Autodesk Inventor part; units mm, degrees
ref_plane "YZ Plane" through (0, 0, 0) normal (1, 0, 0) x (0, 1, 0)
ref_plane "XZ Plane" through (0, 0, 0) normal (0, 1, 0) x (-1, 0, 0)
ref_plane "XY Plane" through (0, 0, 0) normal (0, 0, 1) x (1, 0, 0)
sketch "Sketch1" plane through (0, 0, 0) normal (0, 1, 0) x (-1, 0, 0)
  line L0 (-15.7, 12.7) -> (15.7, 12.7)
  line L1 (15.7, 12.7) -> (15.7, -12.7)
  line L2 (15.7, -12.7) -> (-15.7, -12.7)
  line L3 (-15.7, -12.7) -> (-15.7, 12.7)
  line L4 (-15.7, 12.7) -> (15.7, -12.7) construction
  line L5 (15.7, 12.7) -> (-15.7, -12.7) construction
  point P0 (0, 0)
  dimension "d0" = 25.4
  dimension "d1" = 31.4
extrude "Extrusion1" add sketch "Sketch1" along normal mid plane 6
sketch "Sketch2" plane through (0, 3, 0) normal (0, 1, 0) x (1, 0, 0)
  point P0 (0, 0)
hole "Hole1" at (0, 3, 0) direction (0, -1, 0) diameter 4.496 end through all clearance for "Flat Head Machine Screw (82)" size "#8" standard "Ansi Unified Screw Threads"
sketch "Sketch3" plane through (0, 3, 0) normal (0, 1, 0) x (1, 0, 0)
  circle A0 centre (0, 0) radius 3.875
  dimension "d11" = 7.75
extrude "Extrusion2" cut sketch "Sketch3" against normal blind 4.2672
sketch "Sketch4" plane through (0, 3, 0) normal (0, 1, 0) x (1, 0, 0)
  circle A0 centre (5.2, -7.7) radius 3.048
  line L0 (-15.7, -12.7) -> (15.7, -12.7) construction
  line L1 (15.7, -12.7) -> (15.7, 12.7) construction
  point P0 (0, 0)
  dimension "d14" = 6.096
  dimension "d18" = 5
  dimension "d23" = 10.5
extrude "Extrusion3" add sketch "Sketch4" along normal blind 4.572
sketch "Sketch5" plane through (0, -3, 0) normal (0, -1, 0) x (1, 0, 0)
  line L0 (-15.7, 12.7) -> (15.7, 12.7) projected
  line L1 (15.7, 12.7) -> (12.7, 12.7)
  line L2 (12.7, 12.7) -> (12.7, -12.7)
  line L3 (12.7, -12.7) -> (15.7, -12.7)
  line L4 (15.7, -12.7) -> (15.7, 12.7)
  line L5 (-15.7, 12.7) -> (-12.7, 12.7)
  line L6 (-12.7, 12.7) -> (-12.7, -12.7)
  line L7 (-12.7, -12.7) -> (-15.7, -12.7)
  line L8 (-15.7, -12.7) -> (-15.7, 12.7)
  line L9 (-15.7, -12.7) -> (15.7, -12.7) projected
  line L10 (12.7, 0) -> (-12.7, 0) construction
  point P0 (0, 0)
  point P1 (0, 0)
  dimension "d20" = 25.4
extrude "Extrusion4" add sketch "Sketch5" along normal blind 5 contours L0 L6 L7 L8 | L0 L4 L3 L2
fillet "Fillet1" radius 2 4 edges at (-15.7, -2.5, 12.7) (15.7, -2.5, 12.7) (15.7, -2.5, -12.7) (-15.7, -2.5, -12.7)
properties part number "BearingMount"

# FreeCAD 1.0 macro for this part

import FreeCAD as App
import Part
import Sketcher
Q = App.Units.Quantity


def edges_at(feature, points):
    """Names of the edges that pass closest to the given points."""
    edges = feature.Shape.Edges
    near = lambda p: min(range(len(edges)), key=lambda i: edges[i].distToShape(Part.Vertex(*p))[0])
    return sorted({f"Edge{near(p) + 1}" for p in points})

doc = App.newDocument("Part")
params = doc.addObject("Spreadsheet::Sheet", "Params")
for row, (alias, value) in enumerate([
    ("sketch1_height", "1 in"),
    ("pad1_length", "6 mm"),
    ("sketch2_diameter", "0.177 in"),
    ("hole_diameter", "0.1770079 in"),
    ("pocket1_length", "0.168 in"),
    ("sketch4_diameter", "0.24 in"),
    ("pad2_length", "0.18 in"),
    ("sketch5_height", "1 in"),
    ("pad3_length", "5 mm"),
    ("fillet_radius", "2 mm"),
], start=1):
    params.set(f"A{row}", alias)
    params.set(f"B{row}", "=" + value)
    params.setAlias(f"B{row}", alias)

body = doc.addObject("PartDesign::Body", "Body")

# Sketch on XZ plane
sketch1 = doc.addObject("Sketcher::SketchObject", "Sketch")
body.addObject(sketch1)
sketch1.AttachmentSupport = (doc.XZ_Plane, [""])
sketch1.MapMode = "FlatFace"
sketch1.addGeometry([
    Part.LineSegment(App.Vector(-16, 13, 0), App.Vector(16, 13, 0)),
    Part.LineSegment(App.Vector(16, 13, 0), App.Vector(16, -13, 0)),
    Part.LineSegment(App.Vector(16, -13, 0), App.Vector(-16, -13, 0)),
    Part.LineSegment(App.Vector(-16, -13, 0), App.Vector(-16, 13, 0)),
], False)
sketch1.addConstraint([
    Sketcher.Constraint("Coincident", 0, 2, 1, 1),
    Sketcher.Constraint("Coincident", 1, 2, 2, 1),
    Sketcher.Constraint("Coincident", 2, 2, 3, 1),
    Sketcher.Constraint("Coincident", 3, 2, 0, 1),
    Sketcher.Constraint("Horizontal", 0),
    Sketcher.Constraint("Vertical", 1),
    Sketcher.Constraint("Horizontal", 2),
    Sketcher.Constraint("Vertical", 3),
    Sketcher.Constraint("Symmetric", 0, 2, 2, 2, -1, 1),
    Sketcher.Constraint("DistanceY", 1, 2, 1, 1, Q("1 in")),
    Sketcher.Constraint("DistanceX", 0, 1, 0, 2, 31.4),
])
sketch1.setExpression("Constraints[9]", "Params.sketch1_height")
pad1 = doc.addObject("PartDesign::Pad", "Pad")
body.addObject(pad1)
pad1.Profile = sketch1
pad1.setExpression("Length", "Params.pad1_length")
pad1.Midplane = True

# Sketch on XZ plane
sketch2 = doc.addObject("Sketcher::SketchObject", "Sketch001")
body.addObject(sketch2)
sketch2.AttachmentSupport = (doc.XZ_Plane, [""])
sketch2.MapMode = "FlatFace"
sketch2.AttachmentOffset = App.Placement(App.Vector(0, 0, -0.1181102 * 25.4), App.Rotation())
sketch2.addGeometry(Part.Circle(App.Vector(0, 0, 0), App.Vector(0, 0, 1), 2.2), False)
sketch2.addConstraint([
    Sketcher.Constraint("Coincident", 0, 3, -1, 1),
    Sketcher.Constraint("Diameter", 0, Q("0.177 in")),
])
sketch2.setExpression("Constraints[1]", "Params.sketch2_diameter")
doc.recompute()
hole = doc.addObject("PartDesign::Hole", "Hole")
body.addObject(hole)
hole.Profile = sketch2
hole.ThreadType = "None"
hole.setExpression("Diameter", "Params.hole_diameter")
hole.DepthType = "ThroughAll"
hole.Reversed = True

# Sketch on XZ plane
sketch3 = doc.addObject("Sketcher::SketchObject", "Sketch002")
body.addObject(sketch3)
sketch3.AttachmentSupport = (doc.XZ_Plane, [""])
sketch3.MapMode = "FlatFace"
sketch3.AttachmentOffset = App.Placement(App.Vector(0, 0, -0.1181102 * 25.4), App.Rotation())
sketch3.addGeometry(Part.Circle(App.Vector(0, 0, 0), App.Vector(0, 0, 1), 3.9), False)
sketch3.addConstraint([
    Sketcher.Constraint("Coincident", 0, 3, -1, 1),
    Sketcher.Constraint("Diameter", 0, 7.75),
])
pocket1 = doc.addObject("PartDesign::Pocket", "Pocket")
body.addObject(pocket1)
pocket1.Profile = sketch3
pocket1.setExpression("Length", "Params.pocket1_length")
pocket1.Reversed = True

# Sketch on XZ plane
sketch4 = doc.addObject("Sketcher::SketchObject", "Sketch003")
body.addObject(sketch4)
sketch4.AttachmentSupport = (doc.XZ_Plane, [""])
sketch4.MapMode = "FlatFace"
sketch4.AttachmentOffset = App.Placement(App.Vector(0, 0, -0.1181102 * 25.4), App.Rotation())
sketch4.addGeometry(Part.Circle(App.Vector(5.2, 7.7, 0), App.Vector(0, 0, 1), 3), False)
sketch4.addConstraint([
    Sketcher.Constraint("Diameter", 0, Q("0.24 in")),
    Sketcher.Constraint("DistanceX", -1, 1, 0, 3, 5.2),
    Sketcher.Constraint("DistanceY", -1, 1, 0, 3, 7.7),
])
sketch4.setExpression("Constraints[0]", "Params.sketch4_diameter")
pad2 = doc.addObject("PartDesign::Pad", "Pad001")
body.addObject(pad2)
pad2.Profile = sketch4
pad2.setExpression("Length", "Params.pad2_length")
pad2.Reversed = True

# Sketch on XZ plane
sketch5 = doc.addObject("Sketcher::SketchObject", "Sketch004")
body.addObject(sketch5)
sketch5.AttachmentSupport = (doc.XZ_Plane, [""])
sketch5.MapMode = "FlatFace"
sketch5.AttachmentOffset = App.Placement(App.Vector(0, 0, 0.1181102 * 25.4), App.Rotation())
sketch5.addGeometry([
    Part.LineSegment(App.Vector(-12.7, 12.7, 0), App.Vector(-15.7, 12.7, 0)),  # 0
    Part.LineSegment(App.Vector(-15.7, 12.7, 0), App.Vector(-15.7, -12.7, 0)),  # 1
    Part.LineSegment(App.Vector(-15.7, -12.7, 0), App.Vector(-12.7, -12.7, 0)),  # 2
    Part.LineSegment(App.Vector(-12.7, -12.7, 0), App.Vector(-12.7, 12.7, 0)),  # 3
    Part.LineSegment(App.Vector(15.7, 12.7, 0), App.Vector(12.7, 12.7, 0)),  # 4
    Part.LineSegment(App.Vector(12.7, 12.7, 0), App.Vector(12.7, -12.7, 0)),  # 5
    Part.LineSegment(App.Vector(12.7, -12.7, 0), App.Vector(15.7, -12.7, 0)),  # 6
    Part.LineSegment(App.Vector(15.7, -12.7, 0), App.Vector(15.7, 12.7, 0)),  # 7
], False)
sketch5.addConstraint([
    Sketcher.Constraint("Coincident", 0, 2, 1, 1),
    Sketcher.Constraint("Coincident", 1, 2, 2, 1),
    Sketcher.Constraint("Coincident", 2, 2, 3, 1),
    Sketcher.Constraint("Coincident", 3, 2, 0, 1),
    Sketcher.Constraint("Coincident", 4, 2, 5, 1),
    Sketcher.Constraint("Coincident", 5, 2, 6, 1),
    Sketcher.Constraint("Coincident", 6, 2, 7, 1),
    Sketcher.Constraint("Coincident", 7, 2, 4, 1),
    Sketcher.Constraint("Horizontal", 0),
    Sketcher.Constraint("Vertical", 1),
    Sketcher.Constraint("Horizontal", 2),
    Sketcher.Constraint("Vertical", 3),
    Sketcher.Constraint("Horizontal", 4),
    Sketcher.Constraint("Vertical", 5),
    Sketcher.Constraint("Horizontal", 6),
    Sketcher.Constraint("Vertical", 7),
    Sketcher.Constraint("Symmetric", 2, 2, 4, 2, -1, 1),
    Sketcher.Constraint("Symmetric", 0, 2, 6, 2, -1, 1),
    Sketcher.Constraint("Horizontal", 3, 2, 4, 2),
    Sketcher.Constraint("DistanceY", 1, 2, 1, 1, Q("1 in")),
    Sketcher.Constraint("DistanceX", 3, 2, 4, 2, Q("1 in")),
    Sketcher.Constraint("DistanceX", 0, 2, 0, 1, Q("0.1181 in")),
])
sketch5.setExpression("Constraints[19]", "Params.sketch5_height")
pad3 = doc.addObject("PartDesign::Pad", "Pad002")
body.addObject(pad3)
pad3.Profile = sketch5
pad3.setExpression("Length", "Params.pad3_length")
doc.recompute()

fillet = doc.addObject("PartDesign::Fillet", "Fillet")
body.addObject(fillet)
fillet.Base = (pad3, edges_at(pad3, [
    (-15.7, -2.5, 12.7),
    (15.7, -2.5, 12.7),
    (15.7, -2.5, -12.7),
    (-15.7, -2.5, -12.7),
]))
fillet.setExpression("Radius", "Params.fillet_radius")

doc.recompute()
